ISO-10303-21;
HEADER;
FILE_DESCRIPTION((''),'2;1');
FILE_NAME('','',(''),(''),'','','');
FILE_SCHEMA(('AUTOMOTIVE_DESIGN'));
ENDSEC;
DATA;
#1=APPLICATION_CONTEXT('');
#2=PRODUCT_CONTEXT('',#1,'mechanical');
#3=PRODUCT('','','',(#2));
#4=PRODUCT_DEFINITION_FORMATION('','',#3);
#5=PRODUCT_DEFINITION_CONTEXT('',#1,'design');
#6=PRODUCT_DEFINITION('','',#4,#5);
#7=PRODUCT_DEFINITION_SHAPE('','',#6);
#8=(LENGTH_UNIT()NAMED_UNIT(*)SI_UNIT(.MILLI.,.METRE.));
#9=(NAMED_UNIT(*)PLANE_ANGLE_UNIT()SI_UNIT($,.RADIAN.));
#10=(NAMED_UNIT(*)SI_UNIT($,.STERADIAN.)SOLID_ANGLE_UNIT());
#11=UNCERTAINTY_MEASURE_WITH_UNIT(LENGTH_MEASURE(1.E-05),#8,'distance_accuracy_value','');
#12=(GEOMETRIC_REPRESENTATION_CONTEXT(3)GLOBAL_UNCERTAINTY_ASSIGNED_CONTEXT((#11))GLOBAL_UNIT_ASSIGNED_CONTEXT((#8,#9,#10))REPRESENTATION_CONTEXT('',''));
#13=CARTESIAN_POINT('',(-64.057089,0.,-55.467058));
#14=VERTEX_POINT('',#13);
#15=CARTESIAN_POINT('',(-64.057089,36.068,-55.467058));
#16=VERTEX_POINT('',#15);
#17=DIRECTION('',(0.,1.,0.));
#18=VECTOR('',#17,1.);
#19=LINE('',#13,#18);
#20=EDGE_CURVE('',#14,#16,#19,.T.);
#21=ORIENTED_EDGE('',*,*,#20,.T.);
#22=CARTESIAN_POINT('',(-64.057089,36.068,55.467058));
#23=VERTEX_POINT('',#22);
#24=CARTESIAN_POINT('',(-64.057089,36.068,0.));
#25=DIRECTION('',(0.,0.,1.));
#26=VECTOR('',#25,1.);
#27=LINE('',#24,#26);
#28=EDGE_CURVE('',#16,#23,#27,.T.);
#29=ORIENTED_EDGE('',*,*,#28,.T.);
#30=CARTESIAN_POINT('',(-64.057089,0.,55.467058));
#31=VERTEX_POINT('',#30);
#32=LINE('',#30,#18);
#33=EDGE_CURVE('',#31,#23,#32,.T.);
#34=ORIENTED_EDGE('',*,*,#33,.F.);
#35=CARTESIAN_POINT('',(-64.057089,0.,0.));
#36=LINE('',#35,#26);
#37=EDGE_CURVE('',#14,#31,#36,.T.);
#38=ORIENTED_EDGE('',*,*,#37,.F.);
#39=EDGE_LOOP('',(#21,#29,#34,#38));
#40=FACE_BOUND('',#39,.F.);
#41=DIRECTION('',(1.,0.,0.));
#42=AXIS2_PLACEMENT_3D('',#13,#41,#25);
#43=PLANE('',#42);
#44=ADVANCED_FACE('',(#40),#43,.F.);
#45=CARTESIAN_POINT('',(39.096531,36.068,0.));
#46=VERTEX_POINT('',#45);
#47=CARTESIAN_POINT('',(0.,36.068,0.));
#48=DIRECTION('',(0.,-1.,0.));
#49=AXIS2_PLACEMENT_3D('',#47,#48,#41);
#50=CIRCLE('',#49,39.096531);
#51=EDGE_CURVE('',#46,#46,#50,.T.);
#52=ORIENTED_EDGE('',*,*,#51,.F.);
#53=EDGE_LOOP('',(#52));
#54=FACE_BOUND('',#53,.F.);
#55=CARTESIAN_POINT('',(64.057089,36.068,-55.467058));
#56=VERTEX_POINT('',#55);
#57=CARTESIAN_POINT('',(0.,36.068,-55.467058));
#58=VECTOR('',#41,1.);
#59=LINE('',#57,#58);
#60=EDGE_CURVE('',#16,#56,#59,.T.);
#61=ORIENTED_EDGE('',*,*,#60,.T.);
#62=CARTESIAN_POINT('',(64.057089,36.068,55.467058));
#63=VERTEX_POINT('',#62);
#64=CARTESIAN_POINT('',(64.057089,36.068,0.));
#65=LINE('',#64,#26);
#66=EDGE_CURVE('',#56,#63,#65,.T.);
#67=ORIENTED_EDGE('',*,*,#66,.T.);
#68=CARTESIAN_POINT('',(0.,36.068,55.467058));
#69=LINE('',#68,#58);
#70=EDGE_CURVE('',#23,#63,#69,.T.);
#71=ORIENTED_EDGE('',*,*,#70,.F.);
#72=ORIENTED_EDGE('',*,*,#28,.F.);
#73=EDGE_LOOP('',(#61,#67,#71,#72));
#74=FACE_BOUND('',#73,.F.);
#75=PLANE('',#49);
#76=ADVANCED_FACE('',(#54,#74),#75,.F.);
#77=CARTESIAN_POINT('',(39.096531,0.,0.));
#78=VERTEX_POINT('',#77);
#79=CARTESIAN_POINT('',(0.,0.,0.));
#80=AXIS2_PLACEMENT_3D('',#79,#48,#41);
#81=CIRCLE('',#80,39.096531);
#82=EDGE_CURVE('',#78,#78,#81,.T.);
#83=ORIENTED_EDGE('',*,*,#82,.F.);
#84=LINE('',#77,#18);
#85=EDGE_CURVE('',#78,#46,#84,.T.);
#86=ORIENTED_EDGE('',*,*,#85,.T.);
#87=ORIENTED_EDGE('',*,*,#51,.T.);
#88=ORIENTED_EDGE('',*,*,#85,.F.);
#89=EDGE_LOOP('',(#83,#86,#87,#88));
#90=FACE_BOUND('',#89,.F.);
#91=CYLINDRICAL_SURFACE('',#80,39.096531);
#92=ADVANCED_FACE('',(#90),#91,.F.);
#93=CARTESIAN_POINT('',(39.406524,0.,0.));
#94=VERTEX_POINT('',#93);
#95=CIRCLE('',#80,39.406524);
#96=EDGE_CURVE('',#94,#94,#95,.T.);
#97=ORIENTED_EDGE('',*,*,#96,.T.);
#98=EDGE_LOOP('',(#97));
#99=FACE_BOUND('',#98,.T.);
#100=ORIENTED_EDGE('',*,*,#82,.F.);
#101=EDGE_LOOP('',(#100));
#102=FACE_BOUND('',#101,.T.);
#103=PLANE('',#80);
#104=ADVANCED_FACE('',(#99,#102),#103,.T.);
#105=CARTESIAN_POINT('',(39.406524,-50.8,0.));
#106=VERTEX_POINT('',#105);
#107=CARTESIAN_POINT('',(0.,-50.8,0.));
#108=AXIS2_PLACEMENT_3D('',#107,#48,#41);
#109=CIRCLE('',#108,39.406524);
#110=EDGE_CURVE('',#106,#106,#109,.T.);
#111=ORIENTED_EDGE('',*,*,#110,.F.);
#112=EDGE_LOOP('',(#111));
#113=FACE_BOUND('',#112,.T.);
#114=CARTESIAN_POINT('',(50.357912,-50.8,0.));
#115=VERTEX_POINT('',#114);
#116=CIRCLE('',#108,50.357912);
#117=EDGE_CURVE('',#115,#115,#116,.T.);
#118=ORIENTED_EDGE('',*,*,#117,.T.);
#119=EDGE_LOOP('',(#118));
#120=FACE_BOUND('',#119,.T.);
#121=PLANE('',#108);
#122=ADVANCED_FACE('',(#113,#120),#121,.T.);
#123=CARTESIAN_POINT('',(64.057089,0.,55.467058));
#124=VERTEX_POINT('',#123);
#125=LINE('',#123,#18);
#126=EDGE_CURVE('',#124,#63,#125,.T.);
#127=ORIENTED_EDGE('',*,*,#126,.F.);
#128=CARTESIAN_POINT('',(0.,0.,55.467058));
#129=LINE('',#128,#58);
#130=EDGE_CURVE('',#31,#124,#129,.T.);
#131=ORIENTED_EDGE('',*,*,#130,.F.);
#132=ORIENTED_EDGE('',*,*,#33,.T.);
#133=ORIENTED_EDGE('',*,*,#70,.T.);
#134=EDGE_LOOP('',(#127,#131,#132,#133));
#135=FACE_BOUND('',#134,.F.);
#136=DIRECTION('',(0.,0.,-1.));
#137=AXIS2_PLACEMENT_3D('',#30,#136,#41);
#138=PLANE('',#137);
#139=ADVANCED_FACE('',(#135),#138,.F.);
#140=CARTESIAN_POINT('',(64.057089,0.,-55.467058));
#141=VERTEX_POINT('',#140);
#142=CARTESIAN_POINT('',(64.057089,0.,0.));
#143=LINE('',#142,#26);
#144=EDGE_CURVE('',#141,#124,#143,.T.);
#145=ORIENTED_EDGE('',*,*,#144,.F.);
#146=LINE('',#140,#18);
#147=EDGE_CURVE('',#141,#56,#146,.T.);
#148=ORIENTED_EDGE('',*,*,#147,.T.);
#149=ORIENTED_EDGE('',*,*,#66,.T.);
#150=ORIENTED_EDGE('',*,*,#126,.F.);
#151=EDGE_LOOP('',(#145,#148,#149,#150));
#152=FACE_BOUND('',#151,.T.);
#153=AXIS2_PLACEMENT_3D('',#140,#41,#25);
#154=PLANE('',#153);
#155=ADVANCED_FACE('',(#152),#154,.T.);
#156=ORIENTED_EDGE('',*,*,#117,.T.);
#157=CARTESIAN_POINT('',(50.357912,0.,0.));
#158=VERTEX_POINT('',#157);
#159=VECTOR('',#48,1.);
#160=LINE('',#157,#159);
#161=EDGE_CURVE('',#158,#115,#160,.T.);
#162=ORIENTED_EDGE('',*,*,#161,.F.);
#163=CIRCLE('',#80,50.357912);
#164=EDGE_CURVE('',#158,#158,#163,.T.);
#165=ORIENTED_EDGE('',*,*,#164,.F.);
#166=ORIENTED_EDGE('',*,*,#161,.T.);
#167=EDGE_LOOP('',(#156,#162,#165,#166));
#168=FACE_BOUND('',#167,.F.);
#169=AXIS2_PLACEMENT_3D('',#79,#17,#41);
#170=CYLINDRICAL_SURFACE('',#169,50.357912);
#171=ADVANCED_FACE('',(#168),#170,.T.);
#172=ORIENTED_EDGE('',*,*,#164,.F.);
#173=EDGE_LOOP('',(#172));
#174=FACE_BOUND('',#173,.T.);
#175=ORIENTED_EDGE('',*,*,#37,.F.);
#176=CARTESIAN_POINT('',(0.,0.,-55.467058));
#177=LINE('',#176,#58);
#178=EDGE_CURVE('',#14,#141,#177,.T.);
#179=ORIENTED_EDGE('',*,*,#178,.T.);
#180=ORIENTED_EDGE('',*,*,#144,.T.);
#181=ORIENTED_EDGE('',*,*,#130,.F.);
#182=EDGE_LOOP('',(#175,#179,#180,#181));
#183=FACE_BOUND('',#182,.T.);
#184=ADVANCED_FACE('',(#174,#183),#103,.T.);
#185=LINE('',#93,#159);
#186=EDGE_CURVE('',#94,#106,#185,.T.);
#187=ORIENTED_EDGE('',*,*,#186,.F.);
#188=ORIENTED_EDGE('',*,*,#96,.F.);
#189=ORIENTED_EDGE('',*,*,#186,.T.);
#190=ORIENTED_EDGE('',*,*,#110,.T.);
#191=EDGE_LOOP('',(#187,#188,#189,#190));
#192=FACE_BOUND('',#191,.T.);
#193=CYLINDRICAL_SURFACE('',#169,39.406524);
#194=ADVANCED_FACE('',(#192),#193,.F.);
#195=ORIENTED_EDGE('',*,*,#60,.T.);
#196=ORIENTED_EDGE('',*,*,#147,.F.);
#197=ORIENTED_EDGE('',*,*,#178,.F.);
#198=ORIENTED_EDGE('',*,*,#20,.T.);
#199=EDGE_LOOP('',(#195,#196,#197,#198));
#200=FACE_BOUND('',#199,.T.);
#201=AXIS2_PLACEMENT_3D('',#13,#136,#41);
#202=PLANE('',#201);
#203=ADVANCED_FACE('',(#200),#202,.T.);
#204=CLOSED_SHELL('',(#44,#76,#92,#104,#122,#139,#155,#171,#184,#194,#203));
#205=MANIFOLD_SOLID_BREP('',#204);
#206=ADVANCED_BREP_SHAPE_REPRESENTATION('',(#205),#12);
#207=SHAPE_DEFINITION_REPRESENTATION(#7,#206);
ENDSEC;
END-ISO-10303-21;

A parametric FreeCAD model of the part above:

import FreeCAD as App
import Part
import Sketcher

doc = App.newDocument("Part")
params = doc.addObject("Spreadsheet::Sheet", "Params")
for row, (alias, value) in enumerate([
    ("pad1_length", "1.42 in"),
    ("pad2_length", "2 in"),
], start=1):
    params.set(f"A{row}", alias)
    params.set(f"B{row}", "=" + value)
    params.setAlias(f"B{row}", alias)

body = doc.addObject("PartDesign::Body", "Body")

# Sketch on XZ plane
sketch1 = doc.addObject("Sketcher::SketchObject", "Sketch")
body.addObject(sketch1)
sketch1.AttachmentSupport = (doc.XZ_Plane, [""])
sketch1.MapMode = "FlatFace"
sketch1.addGeometry(Part.LineSegment(App.Vector(-64, 55, 0), App.Vector(-64, -55, 0)), False)
sketch1.addGeometry(Part.LineSegment(App.Vector(-64, -55, 0), App.Vector(64, -55, 0)), False)
sketch1.addGeometry(Part.LineSegment(App.Vector(64, -55, 0), App.Vector(64, 55, 0)), False)
sketch1.addGeometry(Part.LineSegment(App.Vector(64, 55, 0), App.Vector(-64, 55, 0)), False)
sketch1.addGeometry(Part.Circle(App.Vector(0, 0, 0), App.Vector(0, 0, 1), 39), False)
sketch1.addConstraint(Sketcher.Constraint("Coincident", 0, 2, 1, 1))
sketch1.addConstraint(Sketcher.Constraint("Coincident", 1, 2, 2, 1))
sketch1.addConstraint(Sketcher.Constraint("Coincident", 2, 2, 3, 1))
sketch1.addConstraint(Sketcher.Constraint("Coincident", 3, 2, 0, 1))
sketch1.addConstraint(Sketcher.Constraint("Vertical", 0))
sketch1.addConstraint(Sketcher.Constraint("Horizontal", 1))
sketch1.addConstraint(Sketcher.Constraint("Vertical", 2))
sketch1.addConstraint(Sketcher.Constraint("Horizontal", 3))
sketch1.addConstraint(Sketcher.Constraint("Coincident", 4, 3, -1, 1))
sketch1.addConstraint(Sketcher.Constraint("Symmetric", 0, 2, 2, 2, -1, 1))
sketch1.addConstraint(Sketcher.Constraint("Diameter", 4, 78.193062))
sketch1.addConstraint(Sketcher.Constraint("DistanceX", 1, 1, 1, 2, 128.114178))
sketch1.addConstraint(Sketcher.Constraint("DistanceY", 0, 2, 0, 1, 110.934116))
pad1 = doc.addObject("PartDesign::Pad", "Pad")
body.addObject(pad1)
pad1.Profile = sketch1
pad1.setExpression("Length", "Params.pad1_length")
pad1.Reversed = True

# Sketch on XZ plane
sketch2 = doc.addObject("Sketcher::SketchObject", "Sketch001")
body.addObject(sketch2)
sketch2.AttachmentSupport = (doc.XZ_Plane, [""])
sketch2.MapMode = "FlatFace"
sketch2.addGeometry(Part.Circle(App.Vector(0, 0, 0), App.Vector(0, 0, 1), 50), False)
sketch2.addGeometry(Part.Circle(App.Vector(0, 0, 0), App.Vector(0, 0, 1), 39), False)
sketch2.addConstraint(Sketcher.Constraint("Coincident", 0, 3, -1, 1))
sketch2.addConstraint(Sketcher.Constraint("Coincident", 1, 3, -1, 1))
sketch2.addConstraint(Sketcher.Constraint("Diameter", 0, 100.715824))
sketch2.addConstraint(Sketcher.Constraint("Diameter", 1, 78.813048))
pad2 = doc.addObject("PartDesign::Pad", "Pad001")
body.addObject(pad2)
pad2.Profile = sketch2
pad2.setExpression("Length", "Params.pad2_length")

doc.recompute()
